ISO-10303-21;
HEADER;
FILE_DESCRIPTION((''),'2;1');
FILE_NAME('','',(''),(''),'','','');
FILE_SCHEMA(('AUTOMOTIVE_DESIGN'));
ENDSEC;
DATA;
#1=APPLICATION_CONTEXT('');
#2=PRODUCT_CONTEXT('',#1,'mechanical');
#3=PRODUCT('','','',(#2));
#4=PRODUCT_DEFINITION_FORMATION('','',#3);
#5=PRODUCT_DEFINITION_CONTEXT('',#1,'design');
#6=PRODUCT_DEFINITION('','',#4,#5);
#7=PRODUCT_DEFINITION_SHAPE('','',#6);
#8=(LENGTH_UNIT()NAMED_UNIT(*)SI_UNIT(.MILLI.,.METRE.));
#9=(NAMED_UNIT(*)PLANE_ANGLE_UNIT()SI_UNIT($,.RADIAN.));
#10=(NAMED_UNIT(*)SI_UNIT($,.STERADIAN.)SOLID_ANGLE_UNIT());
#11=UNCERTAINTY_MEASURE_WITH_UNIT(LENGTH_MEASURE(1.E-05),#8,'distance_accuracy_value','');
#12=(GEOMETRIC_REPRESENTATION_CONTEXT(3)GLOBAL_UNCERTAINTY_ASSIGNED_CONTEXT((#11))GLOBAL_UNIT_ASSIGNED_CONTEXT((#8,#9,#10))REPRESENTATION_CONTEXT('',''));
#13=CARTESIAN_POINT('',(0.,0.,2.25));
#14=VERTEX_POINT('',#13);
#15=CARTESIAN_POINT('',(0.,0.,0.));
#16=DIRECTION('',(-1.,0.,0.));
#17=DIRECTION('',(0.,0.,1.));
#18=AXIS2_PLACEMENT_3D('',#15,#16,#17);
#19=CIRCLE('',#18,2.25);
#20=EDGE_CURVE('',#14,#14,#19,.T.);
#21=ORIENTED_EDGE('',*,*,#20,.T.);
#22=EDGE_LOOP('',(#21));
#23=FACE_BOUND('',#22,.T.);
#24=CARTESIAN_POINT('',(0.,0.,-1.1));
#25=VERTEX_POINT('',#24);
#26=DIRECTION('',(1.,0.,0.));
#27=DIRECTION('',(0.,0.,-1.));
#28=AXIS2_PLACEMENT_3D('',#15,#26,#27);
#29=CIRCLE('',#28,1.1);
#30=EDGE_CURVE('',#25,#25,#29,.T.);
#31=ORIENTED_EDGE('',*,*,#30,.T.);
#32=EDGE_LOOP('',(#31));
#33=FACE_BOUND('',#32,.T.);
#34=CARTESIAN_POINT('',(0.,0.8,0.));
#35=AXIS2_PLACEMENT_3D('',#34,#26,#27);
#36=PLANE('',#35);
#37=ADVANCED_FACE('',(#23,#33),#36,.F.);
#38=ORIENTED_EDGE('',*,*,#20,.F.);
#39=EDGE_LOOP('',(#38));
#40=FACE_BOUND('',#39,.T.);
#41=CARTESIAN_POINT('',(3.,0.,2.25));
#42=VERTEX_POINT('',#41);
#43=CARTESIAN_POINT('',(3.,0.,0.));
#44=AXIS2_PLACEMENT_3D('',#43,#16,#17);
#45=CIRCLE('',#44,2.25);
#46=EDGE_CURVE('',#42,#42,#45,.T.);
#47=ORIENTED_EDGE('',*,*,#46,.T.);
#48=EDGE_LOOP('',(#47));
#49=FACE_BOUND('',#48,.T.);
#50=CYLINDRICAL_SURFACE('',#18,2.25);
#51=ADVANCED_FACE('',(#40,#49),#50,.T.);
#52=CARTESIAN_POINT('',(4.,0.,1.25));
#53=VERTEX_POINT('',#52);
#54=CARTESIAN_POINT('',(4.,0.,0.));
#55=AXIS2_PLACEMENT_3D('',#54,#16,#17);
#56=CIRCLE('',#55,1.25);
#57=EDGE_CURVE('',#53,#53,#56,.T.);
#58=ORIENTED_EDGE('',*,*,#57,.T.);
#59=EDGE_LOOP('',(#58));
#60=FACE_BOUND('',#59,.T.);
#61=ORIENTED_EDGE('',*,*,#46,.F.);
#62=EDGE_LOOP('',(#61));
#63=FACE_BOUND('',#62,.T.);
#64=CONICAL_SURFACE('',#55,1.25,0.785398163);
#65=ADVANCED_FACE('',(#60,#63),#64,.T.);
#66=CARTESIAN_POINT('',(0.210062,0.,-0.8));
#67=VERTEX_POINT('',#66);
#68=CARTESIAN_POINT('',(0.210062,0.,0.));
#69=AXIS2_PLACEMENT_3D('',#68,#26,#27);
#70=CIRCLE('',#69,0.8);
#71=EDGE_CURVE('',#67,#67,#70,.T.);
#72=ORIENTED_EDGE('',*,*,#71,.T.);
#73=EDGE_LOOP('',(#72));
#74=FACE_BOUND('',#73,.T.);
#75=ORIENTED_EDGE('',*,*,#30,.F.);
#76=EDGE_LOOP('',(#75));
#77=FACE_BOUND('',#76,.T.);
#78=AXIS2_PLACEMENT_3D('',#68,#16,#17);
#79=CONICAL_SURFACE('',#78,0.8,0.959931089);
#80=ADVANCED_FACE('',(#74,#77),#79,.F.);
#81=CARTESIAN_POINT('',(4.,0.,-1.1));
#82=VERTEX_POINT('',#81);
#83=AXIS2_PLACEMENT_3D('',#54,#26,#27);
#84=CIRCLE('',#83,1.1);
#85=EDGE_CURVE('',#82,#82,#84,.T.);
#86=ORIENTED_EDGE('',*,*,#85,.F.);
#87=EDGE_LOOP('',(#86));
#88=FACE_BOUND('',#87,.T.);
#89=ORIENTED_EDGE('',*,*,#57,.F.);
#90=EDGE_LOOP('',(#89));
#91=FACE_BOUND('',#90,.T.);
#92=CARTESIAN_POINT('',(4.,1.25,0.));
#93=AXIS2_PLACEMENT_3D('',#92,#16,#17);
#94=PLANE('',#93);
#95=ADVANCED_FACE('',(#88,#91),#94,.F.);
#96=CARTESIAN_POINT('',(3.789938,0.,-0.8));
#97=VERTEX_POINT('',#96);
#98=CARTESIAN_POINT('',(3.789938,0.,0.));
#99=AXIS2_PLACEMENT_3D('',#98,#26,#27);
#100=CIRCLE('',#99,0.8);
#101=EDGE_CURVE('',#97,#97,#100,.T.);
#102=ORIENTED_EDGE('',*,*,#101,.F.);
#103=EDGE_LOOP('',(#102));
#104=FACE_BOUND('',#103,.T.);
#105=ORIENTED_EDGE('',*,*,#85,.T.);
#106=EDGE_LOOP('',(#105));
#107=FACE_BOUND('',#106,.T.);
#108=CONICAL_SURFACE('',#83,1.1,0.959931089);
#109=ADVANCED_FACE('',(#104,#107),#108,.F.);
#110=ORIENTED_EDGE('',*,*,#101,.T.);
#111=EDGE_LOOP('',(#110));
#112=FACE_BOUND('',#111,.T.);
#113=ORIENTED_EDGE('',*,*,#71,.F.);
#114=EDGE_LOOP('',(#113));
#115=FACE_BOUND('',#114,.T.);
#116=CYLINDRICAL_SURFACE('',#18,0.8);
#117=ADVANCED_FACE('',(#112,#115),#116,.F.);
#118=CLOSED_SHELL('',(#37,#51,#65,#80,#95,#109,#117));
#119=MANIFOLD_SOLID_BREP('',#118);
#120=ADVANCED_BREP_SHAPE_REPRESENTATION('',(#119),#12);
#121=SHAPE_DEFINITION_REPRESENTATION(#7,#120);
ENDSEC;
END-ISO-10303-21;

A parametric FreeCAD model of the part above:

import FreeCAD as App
import Part
import Sketcher
Q = App.Units.Quantity


def add_polygon(sketch, points):
    """Adds a closed chain of lines whose ends are joined by coincident constraints."""
    first, n = sketch.GeometryCount, len(points)
    for a, b in zip(points, points[1:] + points[:1]):
        sketch.addGeometry(Part.LineSegment(App.Vector(*a, 0), App.Vector(*b, 0)), False)
    for i in range(n):
        sketch.addConstraint(Sketcher.Constraint("Coincident", first + i, 2, first + (i + 1) % n, 1))

doc = App.newDocument("Part")
body = doc.addObject("PartDesign::Body", "Body")

# Sketch on XY plane
sketch1 = body.newObject("Sketcher::SketchObject", "Sketch")
sketch1.AttachmentSupport = (doc.getObject("XY_Plane"), [""])
sketch1.MapMode = "FlatFace"
add_polygon(sketch1, [(0, 2.25), (0, 0.8), (4, 0.8), (4, 1.25), (3, 2.25)])  # lines 0-4
sketch1.addConstraint(Sketcher.Constraint("Vertical", 0))
sketch1.addConstraint(Sketcher.Constraint("Horizontal", 1))
sketch1.addConstraint(Sketcher.Constraint("Vertical", 2))
sketch1.addConstraint(Sketcher.Constraint("Horizontal", 4))
sketch1.addConstraint(Sketcher.Constraint("PointOnObject", 0, 2, -2))
sketch1.addConstraint(Sketcher.Constraint("DistanceX", 1, 1, 1, 2, 4.0))
sketch1.addConstraint(Sketcher.Constraint("DistanceX", 4, 2, 4, 1, 3.0))
sketch1.addConstraint(Sketcher.Constraint("Angle", 3, Q("135 deg")))
sketch1.addConstraint(Sketcher.Constraint("DistanceY", 0, 2, 0, 1, 1.45))
sketch1.addConstraint(Sketcher.Constraint("DistanceY", -1, 1, 0, 2, 0.8))
revolution = body.newObject("PartDesign::Revolution", "Revolution")
revolution.Profile = sketch1
revolution.ReferenceAxis = (sketch1, ["H_Axis"])
revolution.Angle = 360

# Sketch on XZ plane
sketch2 = body.newObject("Sketcher::SketchObject", "Sketch001")
sketch2.AttachmentSupport = (doc.getObject("XZ_Plane"), [""])
sketch2.MapMode = "FlatFace"
add_polygon(sketch2, [(0, 0), (4, 0), (4, -1.1), (3.79, -0.8), (0.21, -0.8), (0, -1.1)])  # lines 0-5
sketch2.addConstraint(Sketcher.Constraint("Horizontal", 0))
sketch2.addConstraint(Sketcher.Constraint("Vertical", 1))
sketch2.addConstraint(Sketcher.Constraint("Horizontal", 3))
sketch2.addConstraint(Sketcher.Constraint("Vertical", 5))
sketch2.addConstraint(Sketcher.Constraint("Coincident", 5, 2, -1, 1))
sketch2.addConstraint(Sketcher.Constraint("Horizontal", 1, 2, 4, 2))
sketch2.addConstraint(Sketcher.Constraint("Equal", 2, 4))
sketch2.addConstraint(Sketcher.Constraint("DistanceX", 0, 1, 0, 2, 4.0))
sketch2.addConstraint(Sketcher.Constraint("Angle", 2, Q("125 deg")))
sketch2.addConstraint(Sketcher.Constraint("DistanceY", 1, 2, 1, 1, 1.1))
sketch2.addConstraint(Sketcher.Constraint("DistanceY", 2, 2, -1, 1, 0.8))
groove = body.newObject("PartDesign::Groove", "Groove")
groove.Profile = sketch2
groove.ReferenceAxis = (sketch2, ["H_Axis"])
groove.Angle = 360

doc.recompute()
